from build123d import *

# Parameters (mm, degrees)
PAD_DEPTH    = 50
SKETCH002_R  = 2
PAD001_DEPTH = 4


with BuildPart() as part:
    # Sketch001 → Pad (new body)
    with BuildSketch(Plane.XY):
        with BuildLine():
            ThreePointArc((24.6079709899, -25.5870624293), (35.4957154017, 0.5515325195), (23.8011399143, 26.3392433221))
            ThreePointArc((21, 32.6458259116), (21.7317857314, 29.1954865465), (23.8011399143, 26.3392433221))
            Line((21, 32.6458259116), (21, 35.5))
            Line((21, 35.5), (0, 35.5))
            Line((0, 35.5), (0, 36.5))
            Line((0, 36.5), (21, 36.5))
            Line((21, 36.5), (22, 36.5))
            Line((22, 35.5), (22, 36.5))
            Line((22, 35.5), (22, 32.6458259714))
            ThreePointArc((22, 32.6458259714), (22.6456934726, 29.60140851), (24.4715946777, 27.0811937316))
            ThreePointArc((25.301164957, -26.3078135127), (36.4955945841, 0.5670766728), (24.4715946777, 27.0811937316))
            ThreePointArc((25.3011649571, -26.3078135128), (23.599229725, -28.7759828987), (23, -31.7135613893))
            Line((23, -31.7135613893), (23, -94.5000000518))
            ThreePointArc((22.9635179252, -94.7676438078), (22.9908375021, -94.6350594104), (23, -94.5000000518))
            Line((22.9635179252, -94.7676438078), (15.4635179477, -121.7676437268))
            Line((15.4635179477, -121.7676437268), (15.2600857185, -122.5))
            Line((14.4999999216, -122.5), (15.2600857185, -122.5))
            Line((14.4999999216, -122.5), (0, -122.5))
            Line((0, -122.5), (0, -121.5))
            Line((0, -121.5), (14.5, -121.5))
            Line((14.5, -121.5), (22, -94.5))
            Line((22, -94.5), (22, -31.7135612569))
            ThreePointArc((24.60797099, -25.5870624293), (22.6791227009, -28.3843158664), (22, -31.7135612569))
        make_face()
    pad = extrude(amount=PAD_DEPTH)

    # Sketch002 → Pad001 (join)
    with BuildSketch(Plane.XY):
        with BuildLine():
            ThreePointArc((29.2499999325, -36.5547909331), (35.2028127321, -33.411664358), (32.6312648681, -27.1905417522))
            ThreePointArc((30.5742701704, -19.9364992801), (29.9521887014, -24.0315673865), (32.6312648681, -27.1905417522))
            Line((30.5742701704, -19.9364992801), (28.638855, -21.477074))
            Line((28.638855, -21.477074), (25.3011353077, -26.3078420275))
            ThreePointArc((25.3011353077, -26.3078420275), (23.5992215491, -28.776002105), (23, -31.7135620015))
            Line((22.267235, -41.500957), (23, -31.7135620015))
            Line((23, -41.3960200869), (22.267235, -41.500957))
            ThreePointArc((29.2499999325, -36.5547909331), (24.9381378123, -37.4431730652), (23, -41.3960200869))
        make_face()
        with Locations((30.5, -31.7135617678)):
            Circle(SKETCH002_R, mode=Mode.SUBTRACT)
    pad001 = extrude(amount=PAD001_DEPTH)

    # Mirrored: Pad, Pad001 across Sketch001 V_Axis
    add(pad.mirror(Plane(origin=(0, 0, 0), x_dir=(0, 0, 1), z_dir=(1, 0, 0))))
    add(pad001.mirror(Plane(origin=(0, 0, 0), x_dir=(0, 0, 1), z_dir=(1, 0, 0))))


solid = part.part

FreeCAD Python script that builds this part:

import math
import FreeCAD as App
import Part
import Sketcher
from FreeCAD import Vector
Q = App.Units.Quantity

doc = App.newDocument("Part")
params = doc.addObject("Spreadsheet::Sheet", "Params")
for row, (alias, value) in enumerate([
    ("sketch1_radius", "1 mm"),
    ("sketch1_radius2", "35.5 mm"),
    ("sketch1_radius3", "8.5 mm"),
    ("sketch1_width", "22 mm"),
    ("sketch1_height", "1 mm"),
    ("pad1_length", "50 mm"),
    ("sketch2_diameter", "4 mm"),
    ("sketch2_radius", "5 mm"),
    ("sketch2_radius2", "7.5 mm"),
    ("pad2_length", "4 mm"),
], start=1):
    params.set(f"A{row}", alias)
    params.set(f"B{row}", "=" + value)
    params.setAlias(f"B{row}", alias)

body = doc.addObject("PartDesign::Body", "Body")

# Sketch on XY plane
sketch1 = body.newObject("Sketcher::SketchObject", "Sketch")
sketch1.AttachmentSupport = (doc.getObject("XY_Plane"), [""])
sketch1.MapMode = "FlatFace"
sketch1.addGeometry(Part.ArcOfCircle(Part.Circle(Vector(0, 0, 0), Vector(0, 0, 1), 35.5), math.radians(-46.117455), math.radians(47.897836)), False)
sketch1.addGeometry(Part.ArcOfCircle(Part.Circle(Vector(30.5, -31.713562, 0), Vector(0, 0, 1), 8.5), math.radians(133.882354), math.radians(179.999997)), False)
sketch1.addGeometry(Part.LineSegment(Vector(22, -31.713561, 0), Vector(22, -94.5, 0)), False)
sketch1.addGeometry(Part.LineSegment(Vector(22, -94.5, 0), Vector(14.5, -121.5, 0)), False)
sketch1.addGeometry(Part.LineSegment(Vector(14.5, -121.5, 0), Vector(0, -121.5, 0)), False)
sketch1.addGeometry(Part.LineSegment(Vector(0, -121.5, 0), Vector(0, -122.5, 0)), False)
sketch1.addGeometry(Part.LineSegment(Vector(0, -122.5, 0), Vector(15.260086, -122.5, 0)), False)
sketch1.addGeometry(Part.LineSegment(Vector(15.260086, -122.5, 0), Vector(15.463518, -121.767644, 0)), False)
sketch1.addGeometry(Part.LineSegment(Vector(15.463518, -121.767644, 0), Vector(22.963518, -94.767644, 0)), False)
sketch1.addGeometry(Part.ArcOfCircle(Part.Circle(Vector(22, -94.5, 0), Vector(0, 0, 1), 1), math.radians(-15.524108), math.radians(-0.000003)), False)
sketch1.addGeometry(Part.LineSegment(Vector(23, -94.5, 0), Vector(23, -31.713561, 0)), False)
sketch1.addGeometry(Part.ArcOfCircle(Part.Circle(Vector(30.5, -31.713562, 0), Vector(0, 0, 1), 7.5), math.radians(133.882205), math.radians(179.999997)), False)
sketch1.addGeometry(Part.ArcOfCircle(Part.Circle(Vector(0, 0, 0), Vector(0, 0, 1), 36.5), math.radians(-46.11743), math.radians(47.897835)), False)
sketch1.addGeometry(Part.ArcOfCircle(Part.Circle(Vector(29.5, 32.645827, 0), Vector(0, 0, 1), 7.5), math.radians(-179.999995), math.radians(-132.102118)), False)
sketch1.addGeometry(Part.LineSegment(Vector(22, 32.645826, 0), Vector(22, 36.5, 0)), False)
sketch1.addGeometry(Part.LineSegment(Vector(22, 36.5, 0), Vector(0, 36.5, 0)), False)
sketch1.addGeometry(Part.LineSegment(Vector(0, 36.5, 0), Vector(0, 35.5, 0)), False)
sketch1.addGeometry(Part.LineSegment(Vector(0, 35.5, 0), Vector(21, 35.5, 0)), False)
sketch1.addGeometry(Part.LineSegment(Vector(21, 35.5, 0), Vector(21, 32.645826, 0)), False)
sketch1.addGeometry(Part.ArcOfCircle(Part.Circle(Vector(29.5, 32.645827, 0), Vector(0, 0, 1), 8.5), math.radians(-179.999995), math.radians(-132.102124)), False)
sketch1.addConstraint(Sketcher.Constraint("Coincident", 0, 1, 1, 1))
sketch1.addConstraint(Sketcher.Constraint("Tangent", 1, 2, 2, 1))
sketch1.addConstraint(Sketcher.Constraint("Coincident", 2, 2, 3, 1))
sketch1.addConstraint(Sketcher.Constraint("Coincident", 3, 2, 4, 1))
sketch1.addConstraint(Sketcher.Constraint("Coincident", 4, 2, 5, 1))
sketch1.addConstraint(Sketcher.Constraint("Coincident", 5, 2, 6, 1))
sketch1.addConstraint(Sketcher.Constraint("Coincident", 6, 2, 7, 1))
sketch1.addConstraint(Sketcher.Constraint("Coincident", 7, 2, 8, 1))
sketch1.addConstraint(Sketcher.Constraint("Tangent", 8, 2, 9, 1))
sketch1.addConstraint(Sketcher.Constraint("Tangent", 9, 2, 10, 1))
sketch1.addConstraint(Sketcher.Constraint("Tangent", 10, 2, 11, 2))
sketch1.addConstraint(Sketcher.Constraint("Coincident", 11, 1, 12, 1))
sketch1.addConstraint(Sketcher.Constraint("Tangent", 12, 2, 13, 2))
sketch1.addConstraint(Sketcher.Constraint("Tangent", 13, 1, 14, 1))
sketch1.addConstraint(Sketcher.Constraint("Coincident", 14, 2, 15, 1))
sketch1.addConstraint(Sketcher.Constraint("Coincident", 15, 2, 16, 1))
sketch1.addConstraint(Sketcher.Constraint("Coincident", 16, 2, 17, 1))
sketch1.addConstraint(Sketcher.Constraint("Coincident", 17, 2, 18, 1))
sketch1.addConstraint(Sketcher.Constraint("Tangent", 18, 2, 19, 1))
sketch1.addConstraint(Sketcher.Constraint("Tangent", 19, 2, 0, 2))
sketch1.addConstraint(Sketcher.Constraint("Vertical", 2))
sketch1.addConstraint(Sketcher.Constraint("Horizontal", 4))
sketch1.addConstraint(Sketcher.Constraint("Vertical", 5))
sketch1.addConstraint(Sketcher.Constraint("Horizontal", 6))
sketch1.addConstraint(Sketcher.Constraint("Vertical", 10))
sketch1.addConstraint(Sketcher.Constraint("Vertical", 14))
sketch1.addConstraint(Sketcher.Constraint("Horizontal", 15))
sketch1.addConstraint(Sketcher.Constraint("Vertical", 16))
sketch1.addConstraint(Sketcher.Constraint("Horizontal", 17))
sketch1.addConstraint(Sketcher.Constraint("Vertical", 18))
sketch1.addConstraint(Sketcher.Constraint("Coincident", 0, 3, -1, 1))
sketch1.addConstraint(Sketcher.Constraint("Coincident", 12, 3, -1, 1))
sketch1.addConstraint(Sketcher.Constraint("Coincident", 11, 3, 1, 3))
sketch1.addConstraint(Sketcher.Constraint("Coincident", 19, 3, 13, 3))
sketch1.addConstraint(Sketcher.Constraint("Coincident", 2, 2, 9, 3))
sketch1.addConstraint(Sketcher.Constraint("Equal", 11, 13))
sketch1.addConstraint(Sketcher.Constraint("PointOnObject", 4, 2, -2))
sketch1.addConstraint(Sketcher.Constraint("PointOnObject", 15, 2, -2))
sketch1.addConstraint(Sketcher.Constraint("Parallel", 3, 7))
sketch1.addConstraint(Sketcher.Constraint("Parallel", 7, 8))
sketch1.addConstraint(Sketcher.Constraint("Vertical", 2, 2, 13, 1))
sketch1.addConstraint(Sketcher.Constraint("Equal", 5, 16))
sketch1.addConstraint(Sketcher.Constraint("Equal", 3, 8))
sketch1.addConstraint(Sketcher.Constraint("Radius", 9, Q("1 mm")))
sketch1.addConstraint(Sketcher.Constraint("Radius", 0, Q("35.5 mm")))
sketch1.addConstraint(Sketcher.Constraint("Radius", 1, Q("8.5 mm")))
sketch1.addConstraint(Sketcher.Constraint("DistanceX", 15, 2, 15, 1, Q("22 mm")))
sketch1.addConstraint(Sketcher.Constraint("DistanceY", 5, 2, 5, 1, Q("1 mm")))
sketch1.addConstraint(Sketcher.Constraint("DistanceX", 4, 2, 4, 1, Q("14.5 mm")))
sketch1.addConstraint(Sketcher.Constraint("DistanceY", 3, 2, 9, 3, Q("27 mm")))
sketch1.addConstraint(Sketcher.Constraint("DistanceY", 9, 3, -1, 1, Q("94.5 mm")))
sketch1.addConstraint(Sketcher.Constraint("DistanceY", -1, 1, 14, 2, Q("36.5 mm")))
sketch1.addConstraint(Sketcher.Constraint("DistanceY", 11, 3, 0, 1, Q("6.126499 mm")))
sketch1.addConstraint(Sketcher.Constraint("DistanceY", 11, 1, 0, 1, Q("0.720751 mm")))
sketch1.setExpression("Constraints[43]", "Params.sketch1_radius")
sketch1.setExpression("Constraints[44]", "Params.sketch1_radius2")
sketch1.setExpression("Constraints[45]", "Params.sketch1_radius3")
sketch1.setExpression("Constraints[46]", "Params.sketch1_width")
sketch1.setExpression("Constraints[47]", "Params.sketch1_height")
pad1 = body.newObject("PartDesign::Pad", "Pad")
pad1.Profile = sketch1
pad1.setExpression("Length", "Params.pad1_length")

# Sketch on XY plane
sketch2 = body.newObject("Sketcher::SketchObject", "Sketch001")
sketch2.AttachmentSupport = (doc.getObject("XY_Plane"), [""])
sketch2.MapMode = "FlatFace"
sketch2.addGeometry(Part.ArcOfCircle(Part.Circle(Vector(30.5, -31.713562, 0), Vector(0, 0, 1), 5), math.radians(-104.477513), math.radians(64.770002)), False)
sketch2.addGeometry(Part.ArcOfCircle(Part.Circle(Vector(34.76253, -22.667522, 0), Vector(0, 0, 1), 5), math.radians(146.892988), math.radians(244.770004)), False)
sketch2.addGeometry(Part.LineSegment(Vector(30.57427, -19.936499, 0), Vector(28.638855, -21.477074, 0)), False)
sketch2.addGeometry(Part.LineSegment(Vector(28.638855, -21.477074, 0), Vector(25.301135, -26.307842, 0)), False)
sketch2.addGeometry(Part.ArcOfCircle(Part.Circle(Vector(30.5, -31.713562, 0), Vector(0, 0, 1), 7.5), math.radians(133.882519), math.radians(180.000002)), False)
sketch2.addGeometry(Part.LineSegment(Vector(23, -31.713562, 0), Vector(22.267235, -41.500957, 0)), False)
sketch2.addGeometry(Part.LineSegment(Vector(22.267235, -41.500957, 0), Vector(23, -41.39602, 0)), False)
sketch2.addGeometry(Part.ArcOfCircle(Part.Circle(Vector(28, -41.39602, 0), Vector(0, 0, 1), 5), math.radians(75.522489), math.radians(179.999999)), False)
sketch2.addGeometry(Part.Circle(Vector(30.5, -31.713562, 0), Vector(0, 0, 1), 2), False)
sketch2.addConstraint(Sketcher.Constraint("Tangent", 0, 2, 1, 2))
sketch2.addConstraint(Sketcher.Constraint("Coincident", 1, 1, 2, 1))
sketch2.addConstraint(Sketcher.Constraint("Coincident", 2, 2, 3, 1))
sketch2.addConstraint(Sketcher.Constraint("Coincident", 3, 2, 4, 1))
sketch2.addConstraint(Sketcher.Constraint("Coincident", 4, 2, 5, 1))
sketch2.addConstraint(Sketcher.Constraint("Coincident", 5, 2, 6, 1))
sketch2.addConstraint(Sketcher.Constraint("Coincident", 6, 2, 7, 2))
sketch2.addConstraint(Sketcher.Constraint("Tangent", 7, 1, 0, 1))
sketch2.addConstraint(Sketcher.Constraint("Coincident", 4, 3, 0, 3))
sketch2.addConstraint(Sketcher.Constraint("Coincident", 8, 3, 0, 3))
sketch2.addConstraint(Sketcher.Constraint("Equal", 0, 1))
sketch2.addConstraint(Sketcher.Constraint("Equal", 1, 7))
sketch2.addConstraint(Sketcher.Constraint("Horizontal", 8, 3, 4, 2))
sketch2.addConstraint(Sketcher.Constraint("Horizontal", 7, 3, 6, 2))
sketch2.addConstraint(Sketcher.Constraint("Vertical", 4, 2, 6, 2))
sketch2.addConstraint(Sketcher.Constraint("Diameter", 8, Q("4 mm")))
sketch2.addConstraint(Sketcher.Constraint("Radius", 0, Q("5 mm")))
sketch2.addConstraint(Sketcher.Constraint("Radius", 4, Q("7.5 mm")))
sketch2.addConstraint(Sketcher.Constraint("DistanceX", -1, 1, 7, 3, Q("28 mm")))
sketch2.addConstraint(Sketcher.Constraint("DistanceY", 1, 1, -1, 1, Q("19.936499 mm")))
sketch2.addConstraint(Sketcher.Constraint("DistanceY", 7, 3, 1, 3, Q("18.728498 mm")))
sketch2.addConstraint(Sketcher.Constraint("DistanceY", 0, 2, 3, 2, Q("0.8827 mm")))
sketch2.addConstraint(Sketcher.Constraint("Distance", 6, Q("0.740241 mm")))
sketch2.addConstraint(Sketcher.Constraint("DistanceY", 0, 3, -1, 1, Q("31.713562 mm")))
sketch2.addConstraint(Sketcher.Constraint("DistanceX", 2, 2, 0, 2, Q("3.99241 mm")))
sketch2.addConstraint(Sketcher.Constraint("DistanceY", 3, 2, 2, 2, Q("4.830768 mm")))
sketch2.addConstraint(Sketcher.Constraint("Distance", 5, Q("9.814787 mm")))
sketch2.setExpression("Constraints[15]", "Params.sketch2_diameter")
sketch2.setExpression("Constraints[16]", "Params.sketch2_radius")
sketch2.setExpression("Constraints[17]", "Params.sketch2_radius2")
pad2 = body.newObject("PartDesign::Pad", "Pad001")
pad2.Profile = sketch2
pad2.setExpression("Length", "Params.pad2_length")
doc.recompute()

mirrored = body.newObject("PartDesign::Mirrored", "Mirrored")
mirrored.Originals = [pad1, pad2]
mirrored.MirrorPlane = (doc.getObject("YZ_Plane"), [""])
body.Tip = mirrored

doc.recompute()
